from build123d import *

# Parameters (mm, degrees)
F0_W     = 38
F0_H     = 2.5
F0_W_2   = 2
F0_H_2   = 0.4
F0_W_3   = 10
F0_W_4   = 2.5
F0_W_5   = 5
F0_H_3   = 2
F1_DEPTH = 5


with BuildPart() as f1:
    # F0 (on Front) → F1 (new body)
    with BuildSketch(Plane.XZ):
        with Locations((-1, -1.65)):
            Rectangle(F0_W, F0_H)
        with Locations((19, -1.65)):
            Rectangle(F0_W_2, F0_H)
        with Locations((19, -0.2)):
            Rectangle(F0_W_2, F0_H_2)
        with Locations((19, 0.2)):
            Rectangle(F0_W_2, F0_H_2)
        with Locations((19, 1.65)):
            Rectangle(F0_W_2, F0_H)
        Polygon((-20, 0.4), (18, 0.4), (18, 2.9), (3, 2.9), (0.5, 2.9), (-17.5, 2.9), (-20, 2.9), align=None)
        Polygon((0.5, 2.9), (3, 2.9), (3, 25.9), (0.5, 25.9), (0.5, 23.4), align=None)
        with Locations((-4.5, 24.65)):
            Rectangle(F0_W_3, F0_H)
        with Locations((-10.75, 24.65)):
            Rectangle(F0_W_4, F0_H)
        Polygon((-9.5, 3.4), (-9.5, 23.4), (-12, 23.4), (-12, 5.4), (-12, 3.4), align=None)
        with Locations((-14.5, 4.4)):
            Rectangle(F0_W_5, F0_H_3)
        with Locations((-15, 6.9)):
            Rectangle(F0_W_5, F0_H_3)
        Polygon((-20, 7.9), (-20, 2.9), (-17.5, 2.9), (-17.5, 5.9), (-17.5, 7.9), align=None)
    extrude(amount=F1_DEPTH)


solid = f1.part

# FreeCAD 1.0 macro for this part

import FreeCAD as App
import Part
import Sketcher
Q = App.Units.Quantity


def add_polygon(sketch, points):
    """Adds a closed chain of lines whose ends are joined by coincident constraints."""
    first, n = sketch.GeometryCount, len(points)
    for a, b in zip(points, points[1:] + points[:1]):
        sketch.addGeometry(Part.LineSegment(App.Vector(*a, 0), App.Vector(*b, 0)), False)
    for i in range(n):
        sketch.addConstraint(Sketcher.Constraint("Coincident", first + i, 2, first + (i + 1) % n, 1))

doc = App.newDocument("Part")
body = doc.addObject("PartDesign::Body", "Body")

# Sketch on XZ plane
sketch1 = doc.addObject("Sketcher::SketchObject", "Sketch")
body.addObject(sketch1)
sketch1.AttachmentSupport = (doc.XZ_Plane, [""])
sketch1.MapMode = "FlatFace"
add_polygon(sketch1, [(-20, -0.4), (-20, -2.9), (20, -2.9), (20, 2.9), (3, 2.9), (3, 25.9), (-12, 25.9), (-12, 5.4), (-17, 5.4), (-17, 3.4), (-9.5, 3.4), (-9.5, 23.4), (0.5, 23.4), (0.5, 2.9), (-17.5, 2.9), (-17.5, 5.9), (-12.5, 5.9), (-12.5, 7.9), (-20, 7.9), (-20, 0.4), (18, 0.4), (18, -0.4)])  # lines 0-21
sketch1.addConstraint([
    Sketcher.Constraint("Vertical", 0),
    Sketcher.Constraint("Horizontal", 1),
    Sketcher.Constraint("Vertical", 2),
    Sketcher.Constraint("Horizontal", 3),
    Sketcher.Constraint("Vertical", 4),
    Sketcher.Constraint("Horizontal", 5),
    Sketcher.Constraint("Vertical", 6),
    Sketcher.Constraint("Horizontal", 7),
    Sketcher.Constraint("Vertical", 8),
    Sketcher.Constraint("Horizontal", 9),
    Sketcher.Constraint("Vertical", 10),
    Sketcher.Constraint("Horizontal", 11),
    Sketcher.Constraint("Vertical", 12),
    Sketcher.Constraint("Horizontal", 13),
    Sketcher.Constraint("Vertical", 14),
    Sketcher.Constraint("Horizontal", 15),
    Sketcher.Constraint("Vertical", 16),
    Sketcher.Constraint("Horizontal", 17),
    Sketcher.Constraint("Vertical", 18),
    Sketcher.Constraint("Horizontal", 19),
    Sketcher.Constraint("Vertical", 20),
    Sketcher.Constraint("Horizontal", 21),
    Sketcher.Constraint("Symmetric", 0, 2, 2, 2, -1, 1),
    Sketcher.Constraint("Symmetric", 18, 2, 21, 2, -1),
    Sketcher.Constraint("Horizontal", 3, 2, 12, 2),
    Sketcher.Constraint("Equal", 7, 15),
    Sketcher.Constraint("Equal", 9, 17),
    Sketcher.Constraint("Equal", 6, 12),
    Sketcher.Constraint("Equal", 8, 16),
    Sketcher.Constraint("Equal", 17, 18),
    Sketcher.Constraint("DistanceX", 1, 1, 1, 2, Q("40 mm")),
    Sketcher.Constraint("DistanceX", 3, 2, 3, 1, Q("17 mm")),
    Sketcher.Constraint("DistanceX", 5, 2, 5, 1, Q("15 mm")),
    Sketcher.Constraint("DistanceX", 7, 2, 7, 1, Q("5 mm")),
    Sketcher.Constraint("DistanceX", 11, 1, 11, 2, Q("10 mm")),
    Sketcher.Constraint("DistanceX", 19, 1, 19, 2, Q("38 mm")),
    Sketcher.Constraint("DistanceY", 4, 1, 4, 2, Q("23 mm")),
    Sketcher.Constraint("DistanceY", 8, 2, 8, 1, Q("2 mm")),
    Sketcher.Constraint("DistanceY", 10, 1, 10, 2, Q("20 mm")),
    Sketcher.Constraint("DistanceY", 14, 1, 14, 2, Q("3 mm")),
    Sketcher.Constraint("DistanceX", 9, 1, 9, 2, Q("7.5 mm")),
    Sketcher.Constraint("DistanceY", 2, 1, 2, 2, Q("5.8 mm")),
])
pad1 = doc.addObject("PartDesign::Pad", "Pad")
body.addObject(pad1)
pad1.Profile = sketch1
pad1.Length = 5

doc.recompute()
